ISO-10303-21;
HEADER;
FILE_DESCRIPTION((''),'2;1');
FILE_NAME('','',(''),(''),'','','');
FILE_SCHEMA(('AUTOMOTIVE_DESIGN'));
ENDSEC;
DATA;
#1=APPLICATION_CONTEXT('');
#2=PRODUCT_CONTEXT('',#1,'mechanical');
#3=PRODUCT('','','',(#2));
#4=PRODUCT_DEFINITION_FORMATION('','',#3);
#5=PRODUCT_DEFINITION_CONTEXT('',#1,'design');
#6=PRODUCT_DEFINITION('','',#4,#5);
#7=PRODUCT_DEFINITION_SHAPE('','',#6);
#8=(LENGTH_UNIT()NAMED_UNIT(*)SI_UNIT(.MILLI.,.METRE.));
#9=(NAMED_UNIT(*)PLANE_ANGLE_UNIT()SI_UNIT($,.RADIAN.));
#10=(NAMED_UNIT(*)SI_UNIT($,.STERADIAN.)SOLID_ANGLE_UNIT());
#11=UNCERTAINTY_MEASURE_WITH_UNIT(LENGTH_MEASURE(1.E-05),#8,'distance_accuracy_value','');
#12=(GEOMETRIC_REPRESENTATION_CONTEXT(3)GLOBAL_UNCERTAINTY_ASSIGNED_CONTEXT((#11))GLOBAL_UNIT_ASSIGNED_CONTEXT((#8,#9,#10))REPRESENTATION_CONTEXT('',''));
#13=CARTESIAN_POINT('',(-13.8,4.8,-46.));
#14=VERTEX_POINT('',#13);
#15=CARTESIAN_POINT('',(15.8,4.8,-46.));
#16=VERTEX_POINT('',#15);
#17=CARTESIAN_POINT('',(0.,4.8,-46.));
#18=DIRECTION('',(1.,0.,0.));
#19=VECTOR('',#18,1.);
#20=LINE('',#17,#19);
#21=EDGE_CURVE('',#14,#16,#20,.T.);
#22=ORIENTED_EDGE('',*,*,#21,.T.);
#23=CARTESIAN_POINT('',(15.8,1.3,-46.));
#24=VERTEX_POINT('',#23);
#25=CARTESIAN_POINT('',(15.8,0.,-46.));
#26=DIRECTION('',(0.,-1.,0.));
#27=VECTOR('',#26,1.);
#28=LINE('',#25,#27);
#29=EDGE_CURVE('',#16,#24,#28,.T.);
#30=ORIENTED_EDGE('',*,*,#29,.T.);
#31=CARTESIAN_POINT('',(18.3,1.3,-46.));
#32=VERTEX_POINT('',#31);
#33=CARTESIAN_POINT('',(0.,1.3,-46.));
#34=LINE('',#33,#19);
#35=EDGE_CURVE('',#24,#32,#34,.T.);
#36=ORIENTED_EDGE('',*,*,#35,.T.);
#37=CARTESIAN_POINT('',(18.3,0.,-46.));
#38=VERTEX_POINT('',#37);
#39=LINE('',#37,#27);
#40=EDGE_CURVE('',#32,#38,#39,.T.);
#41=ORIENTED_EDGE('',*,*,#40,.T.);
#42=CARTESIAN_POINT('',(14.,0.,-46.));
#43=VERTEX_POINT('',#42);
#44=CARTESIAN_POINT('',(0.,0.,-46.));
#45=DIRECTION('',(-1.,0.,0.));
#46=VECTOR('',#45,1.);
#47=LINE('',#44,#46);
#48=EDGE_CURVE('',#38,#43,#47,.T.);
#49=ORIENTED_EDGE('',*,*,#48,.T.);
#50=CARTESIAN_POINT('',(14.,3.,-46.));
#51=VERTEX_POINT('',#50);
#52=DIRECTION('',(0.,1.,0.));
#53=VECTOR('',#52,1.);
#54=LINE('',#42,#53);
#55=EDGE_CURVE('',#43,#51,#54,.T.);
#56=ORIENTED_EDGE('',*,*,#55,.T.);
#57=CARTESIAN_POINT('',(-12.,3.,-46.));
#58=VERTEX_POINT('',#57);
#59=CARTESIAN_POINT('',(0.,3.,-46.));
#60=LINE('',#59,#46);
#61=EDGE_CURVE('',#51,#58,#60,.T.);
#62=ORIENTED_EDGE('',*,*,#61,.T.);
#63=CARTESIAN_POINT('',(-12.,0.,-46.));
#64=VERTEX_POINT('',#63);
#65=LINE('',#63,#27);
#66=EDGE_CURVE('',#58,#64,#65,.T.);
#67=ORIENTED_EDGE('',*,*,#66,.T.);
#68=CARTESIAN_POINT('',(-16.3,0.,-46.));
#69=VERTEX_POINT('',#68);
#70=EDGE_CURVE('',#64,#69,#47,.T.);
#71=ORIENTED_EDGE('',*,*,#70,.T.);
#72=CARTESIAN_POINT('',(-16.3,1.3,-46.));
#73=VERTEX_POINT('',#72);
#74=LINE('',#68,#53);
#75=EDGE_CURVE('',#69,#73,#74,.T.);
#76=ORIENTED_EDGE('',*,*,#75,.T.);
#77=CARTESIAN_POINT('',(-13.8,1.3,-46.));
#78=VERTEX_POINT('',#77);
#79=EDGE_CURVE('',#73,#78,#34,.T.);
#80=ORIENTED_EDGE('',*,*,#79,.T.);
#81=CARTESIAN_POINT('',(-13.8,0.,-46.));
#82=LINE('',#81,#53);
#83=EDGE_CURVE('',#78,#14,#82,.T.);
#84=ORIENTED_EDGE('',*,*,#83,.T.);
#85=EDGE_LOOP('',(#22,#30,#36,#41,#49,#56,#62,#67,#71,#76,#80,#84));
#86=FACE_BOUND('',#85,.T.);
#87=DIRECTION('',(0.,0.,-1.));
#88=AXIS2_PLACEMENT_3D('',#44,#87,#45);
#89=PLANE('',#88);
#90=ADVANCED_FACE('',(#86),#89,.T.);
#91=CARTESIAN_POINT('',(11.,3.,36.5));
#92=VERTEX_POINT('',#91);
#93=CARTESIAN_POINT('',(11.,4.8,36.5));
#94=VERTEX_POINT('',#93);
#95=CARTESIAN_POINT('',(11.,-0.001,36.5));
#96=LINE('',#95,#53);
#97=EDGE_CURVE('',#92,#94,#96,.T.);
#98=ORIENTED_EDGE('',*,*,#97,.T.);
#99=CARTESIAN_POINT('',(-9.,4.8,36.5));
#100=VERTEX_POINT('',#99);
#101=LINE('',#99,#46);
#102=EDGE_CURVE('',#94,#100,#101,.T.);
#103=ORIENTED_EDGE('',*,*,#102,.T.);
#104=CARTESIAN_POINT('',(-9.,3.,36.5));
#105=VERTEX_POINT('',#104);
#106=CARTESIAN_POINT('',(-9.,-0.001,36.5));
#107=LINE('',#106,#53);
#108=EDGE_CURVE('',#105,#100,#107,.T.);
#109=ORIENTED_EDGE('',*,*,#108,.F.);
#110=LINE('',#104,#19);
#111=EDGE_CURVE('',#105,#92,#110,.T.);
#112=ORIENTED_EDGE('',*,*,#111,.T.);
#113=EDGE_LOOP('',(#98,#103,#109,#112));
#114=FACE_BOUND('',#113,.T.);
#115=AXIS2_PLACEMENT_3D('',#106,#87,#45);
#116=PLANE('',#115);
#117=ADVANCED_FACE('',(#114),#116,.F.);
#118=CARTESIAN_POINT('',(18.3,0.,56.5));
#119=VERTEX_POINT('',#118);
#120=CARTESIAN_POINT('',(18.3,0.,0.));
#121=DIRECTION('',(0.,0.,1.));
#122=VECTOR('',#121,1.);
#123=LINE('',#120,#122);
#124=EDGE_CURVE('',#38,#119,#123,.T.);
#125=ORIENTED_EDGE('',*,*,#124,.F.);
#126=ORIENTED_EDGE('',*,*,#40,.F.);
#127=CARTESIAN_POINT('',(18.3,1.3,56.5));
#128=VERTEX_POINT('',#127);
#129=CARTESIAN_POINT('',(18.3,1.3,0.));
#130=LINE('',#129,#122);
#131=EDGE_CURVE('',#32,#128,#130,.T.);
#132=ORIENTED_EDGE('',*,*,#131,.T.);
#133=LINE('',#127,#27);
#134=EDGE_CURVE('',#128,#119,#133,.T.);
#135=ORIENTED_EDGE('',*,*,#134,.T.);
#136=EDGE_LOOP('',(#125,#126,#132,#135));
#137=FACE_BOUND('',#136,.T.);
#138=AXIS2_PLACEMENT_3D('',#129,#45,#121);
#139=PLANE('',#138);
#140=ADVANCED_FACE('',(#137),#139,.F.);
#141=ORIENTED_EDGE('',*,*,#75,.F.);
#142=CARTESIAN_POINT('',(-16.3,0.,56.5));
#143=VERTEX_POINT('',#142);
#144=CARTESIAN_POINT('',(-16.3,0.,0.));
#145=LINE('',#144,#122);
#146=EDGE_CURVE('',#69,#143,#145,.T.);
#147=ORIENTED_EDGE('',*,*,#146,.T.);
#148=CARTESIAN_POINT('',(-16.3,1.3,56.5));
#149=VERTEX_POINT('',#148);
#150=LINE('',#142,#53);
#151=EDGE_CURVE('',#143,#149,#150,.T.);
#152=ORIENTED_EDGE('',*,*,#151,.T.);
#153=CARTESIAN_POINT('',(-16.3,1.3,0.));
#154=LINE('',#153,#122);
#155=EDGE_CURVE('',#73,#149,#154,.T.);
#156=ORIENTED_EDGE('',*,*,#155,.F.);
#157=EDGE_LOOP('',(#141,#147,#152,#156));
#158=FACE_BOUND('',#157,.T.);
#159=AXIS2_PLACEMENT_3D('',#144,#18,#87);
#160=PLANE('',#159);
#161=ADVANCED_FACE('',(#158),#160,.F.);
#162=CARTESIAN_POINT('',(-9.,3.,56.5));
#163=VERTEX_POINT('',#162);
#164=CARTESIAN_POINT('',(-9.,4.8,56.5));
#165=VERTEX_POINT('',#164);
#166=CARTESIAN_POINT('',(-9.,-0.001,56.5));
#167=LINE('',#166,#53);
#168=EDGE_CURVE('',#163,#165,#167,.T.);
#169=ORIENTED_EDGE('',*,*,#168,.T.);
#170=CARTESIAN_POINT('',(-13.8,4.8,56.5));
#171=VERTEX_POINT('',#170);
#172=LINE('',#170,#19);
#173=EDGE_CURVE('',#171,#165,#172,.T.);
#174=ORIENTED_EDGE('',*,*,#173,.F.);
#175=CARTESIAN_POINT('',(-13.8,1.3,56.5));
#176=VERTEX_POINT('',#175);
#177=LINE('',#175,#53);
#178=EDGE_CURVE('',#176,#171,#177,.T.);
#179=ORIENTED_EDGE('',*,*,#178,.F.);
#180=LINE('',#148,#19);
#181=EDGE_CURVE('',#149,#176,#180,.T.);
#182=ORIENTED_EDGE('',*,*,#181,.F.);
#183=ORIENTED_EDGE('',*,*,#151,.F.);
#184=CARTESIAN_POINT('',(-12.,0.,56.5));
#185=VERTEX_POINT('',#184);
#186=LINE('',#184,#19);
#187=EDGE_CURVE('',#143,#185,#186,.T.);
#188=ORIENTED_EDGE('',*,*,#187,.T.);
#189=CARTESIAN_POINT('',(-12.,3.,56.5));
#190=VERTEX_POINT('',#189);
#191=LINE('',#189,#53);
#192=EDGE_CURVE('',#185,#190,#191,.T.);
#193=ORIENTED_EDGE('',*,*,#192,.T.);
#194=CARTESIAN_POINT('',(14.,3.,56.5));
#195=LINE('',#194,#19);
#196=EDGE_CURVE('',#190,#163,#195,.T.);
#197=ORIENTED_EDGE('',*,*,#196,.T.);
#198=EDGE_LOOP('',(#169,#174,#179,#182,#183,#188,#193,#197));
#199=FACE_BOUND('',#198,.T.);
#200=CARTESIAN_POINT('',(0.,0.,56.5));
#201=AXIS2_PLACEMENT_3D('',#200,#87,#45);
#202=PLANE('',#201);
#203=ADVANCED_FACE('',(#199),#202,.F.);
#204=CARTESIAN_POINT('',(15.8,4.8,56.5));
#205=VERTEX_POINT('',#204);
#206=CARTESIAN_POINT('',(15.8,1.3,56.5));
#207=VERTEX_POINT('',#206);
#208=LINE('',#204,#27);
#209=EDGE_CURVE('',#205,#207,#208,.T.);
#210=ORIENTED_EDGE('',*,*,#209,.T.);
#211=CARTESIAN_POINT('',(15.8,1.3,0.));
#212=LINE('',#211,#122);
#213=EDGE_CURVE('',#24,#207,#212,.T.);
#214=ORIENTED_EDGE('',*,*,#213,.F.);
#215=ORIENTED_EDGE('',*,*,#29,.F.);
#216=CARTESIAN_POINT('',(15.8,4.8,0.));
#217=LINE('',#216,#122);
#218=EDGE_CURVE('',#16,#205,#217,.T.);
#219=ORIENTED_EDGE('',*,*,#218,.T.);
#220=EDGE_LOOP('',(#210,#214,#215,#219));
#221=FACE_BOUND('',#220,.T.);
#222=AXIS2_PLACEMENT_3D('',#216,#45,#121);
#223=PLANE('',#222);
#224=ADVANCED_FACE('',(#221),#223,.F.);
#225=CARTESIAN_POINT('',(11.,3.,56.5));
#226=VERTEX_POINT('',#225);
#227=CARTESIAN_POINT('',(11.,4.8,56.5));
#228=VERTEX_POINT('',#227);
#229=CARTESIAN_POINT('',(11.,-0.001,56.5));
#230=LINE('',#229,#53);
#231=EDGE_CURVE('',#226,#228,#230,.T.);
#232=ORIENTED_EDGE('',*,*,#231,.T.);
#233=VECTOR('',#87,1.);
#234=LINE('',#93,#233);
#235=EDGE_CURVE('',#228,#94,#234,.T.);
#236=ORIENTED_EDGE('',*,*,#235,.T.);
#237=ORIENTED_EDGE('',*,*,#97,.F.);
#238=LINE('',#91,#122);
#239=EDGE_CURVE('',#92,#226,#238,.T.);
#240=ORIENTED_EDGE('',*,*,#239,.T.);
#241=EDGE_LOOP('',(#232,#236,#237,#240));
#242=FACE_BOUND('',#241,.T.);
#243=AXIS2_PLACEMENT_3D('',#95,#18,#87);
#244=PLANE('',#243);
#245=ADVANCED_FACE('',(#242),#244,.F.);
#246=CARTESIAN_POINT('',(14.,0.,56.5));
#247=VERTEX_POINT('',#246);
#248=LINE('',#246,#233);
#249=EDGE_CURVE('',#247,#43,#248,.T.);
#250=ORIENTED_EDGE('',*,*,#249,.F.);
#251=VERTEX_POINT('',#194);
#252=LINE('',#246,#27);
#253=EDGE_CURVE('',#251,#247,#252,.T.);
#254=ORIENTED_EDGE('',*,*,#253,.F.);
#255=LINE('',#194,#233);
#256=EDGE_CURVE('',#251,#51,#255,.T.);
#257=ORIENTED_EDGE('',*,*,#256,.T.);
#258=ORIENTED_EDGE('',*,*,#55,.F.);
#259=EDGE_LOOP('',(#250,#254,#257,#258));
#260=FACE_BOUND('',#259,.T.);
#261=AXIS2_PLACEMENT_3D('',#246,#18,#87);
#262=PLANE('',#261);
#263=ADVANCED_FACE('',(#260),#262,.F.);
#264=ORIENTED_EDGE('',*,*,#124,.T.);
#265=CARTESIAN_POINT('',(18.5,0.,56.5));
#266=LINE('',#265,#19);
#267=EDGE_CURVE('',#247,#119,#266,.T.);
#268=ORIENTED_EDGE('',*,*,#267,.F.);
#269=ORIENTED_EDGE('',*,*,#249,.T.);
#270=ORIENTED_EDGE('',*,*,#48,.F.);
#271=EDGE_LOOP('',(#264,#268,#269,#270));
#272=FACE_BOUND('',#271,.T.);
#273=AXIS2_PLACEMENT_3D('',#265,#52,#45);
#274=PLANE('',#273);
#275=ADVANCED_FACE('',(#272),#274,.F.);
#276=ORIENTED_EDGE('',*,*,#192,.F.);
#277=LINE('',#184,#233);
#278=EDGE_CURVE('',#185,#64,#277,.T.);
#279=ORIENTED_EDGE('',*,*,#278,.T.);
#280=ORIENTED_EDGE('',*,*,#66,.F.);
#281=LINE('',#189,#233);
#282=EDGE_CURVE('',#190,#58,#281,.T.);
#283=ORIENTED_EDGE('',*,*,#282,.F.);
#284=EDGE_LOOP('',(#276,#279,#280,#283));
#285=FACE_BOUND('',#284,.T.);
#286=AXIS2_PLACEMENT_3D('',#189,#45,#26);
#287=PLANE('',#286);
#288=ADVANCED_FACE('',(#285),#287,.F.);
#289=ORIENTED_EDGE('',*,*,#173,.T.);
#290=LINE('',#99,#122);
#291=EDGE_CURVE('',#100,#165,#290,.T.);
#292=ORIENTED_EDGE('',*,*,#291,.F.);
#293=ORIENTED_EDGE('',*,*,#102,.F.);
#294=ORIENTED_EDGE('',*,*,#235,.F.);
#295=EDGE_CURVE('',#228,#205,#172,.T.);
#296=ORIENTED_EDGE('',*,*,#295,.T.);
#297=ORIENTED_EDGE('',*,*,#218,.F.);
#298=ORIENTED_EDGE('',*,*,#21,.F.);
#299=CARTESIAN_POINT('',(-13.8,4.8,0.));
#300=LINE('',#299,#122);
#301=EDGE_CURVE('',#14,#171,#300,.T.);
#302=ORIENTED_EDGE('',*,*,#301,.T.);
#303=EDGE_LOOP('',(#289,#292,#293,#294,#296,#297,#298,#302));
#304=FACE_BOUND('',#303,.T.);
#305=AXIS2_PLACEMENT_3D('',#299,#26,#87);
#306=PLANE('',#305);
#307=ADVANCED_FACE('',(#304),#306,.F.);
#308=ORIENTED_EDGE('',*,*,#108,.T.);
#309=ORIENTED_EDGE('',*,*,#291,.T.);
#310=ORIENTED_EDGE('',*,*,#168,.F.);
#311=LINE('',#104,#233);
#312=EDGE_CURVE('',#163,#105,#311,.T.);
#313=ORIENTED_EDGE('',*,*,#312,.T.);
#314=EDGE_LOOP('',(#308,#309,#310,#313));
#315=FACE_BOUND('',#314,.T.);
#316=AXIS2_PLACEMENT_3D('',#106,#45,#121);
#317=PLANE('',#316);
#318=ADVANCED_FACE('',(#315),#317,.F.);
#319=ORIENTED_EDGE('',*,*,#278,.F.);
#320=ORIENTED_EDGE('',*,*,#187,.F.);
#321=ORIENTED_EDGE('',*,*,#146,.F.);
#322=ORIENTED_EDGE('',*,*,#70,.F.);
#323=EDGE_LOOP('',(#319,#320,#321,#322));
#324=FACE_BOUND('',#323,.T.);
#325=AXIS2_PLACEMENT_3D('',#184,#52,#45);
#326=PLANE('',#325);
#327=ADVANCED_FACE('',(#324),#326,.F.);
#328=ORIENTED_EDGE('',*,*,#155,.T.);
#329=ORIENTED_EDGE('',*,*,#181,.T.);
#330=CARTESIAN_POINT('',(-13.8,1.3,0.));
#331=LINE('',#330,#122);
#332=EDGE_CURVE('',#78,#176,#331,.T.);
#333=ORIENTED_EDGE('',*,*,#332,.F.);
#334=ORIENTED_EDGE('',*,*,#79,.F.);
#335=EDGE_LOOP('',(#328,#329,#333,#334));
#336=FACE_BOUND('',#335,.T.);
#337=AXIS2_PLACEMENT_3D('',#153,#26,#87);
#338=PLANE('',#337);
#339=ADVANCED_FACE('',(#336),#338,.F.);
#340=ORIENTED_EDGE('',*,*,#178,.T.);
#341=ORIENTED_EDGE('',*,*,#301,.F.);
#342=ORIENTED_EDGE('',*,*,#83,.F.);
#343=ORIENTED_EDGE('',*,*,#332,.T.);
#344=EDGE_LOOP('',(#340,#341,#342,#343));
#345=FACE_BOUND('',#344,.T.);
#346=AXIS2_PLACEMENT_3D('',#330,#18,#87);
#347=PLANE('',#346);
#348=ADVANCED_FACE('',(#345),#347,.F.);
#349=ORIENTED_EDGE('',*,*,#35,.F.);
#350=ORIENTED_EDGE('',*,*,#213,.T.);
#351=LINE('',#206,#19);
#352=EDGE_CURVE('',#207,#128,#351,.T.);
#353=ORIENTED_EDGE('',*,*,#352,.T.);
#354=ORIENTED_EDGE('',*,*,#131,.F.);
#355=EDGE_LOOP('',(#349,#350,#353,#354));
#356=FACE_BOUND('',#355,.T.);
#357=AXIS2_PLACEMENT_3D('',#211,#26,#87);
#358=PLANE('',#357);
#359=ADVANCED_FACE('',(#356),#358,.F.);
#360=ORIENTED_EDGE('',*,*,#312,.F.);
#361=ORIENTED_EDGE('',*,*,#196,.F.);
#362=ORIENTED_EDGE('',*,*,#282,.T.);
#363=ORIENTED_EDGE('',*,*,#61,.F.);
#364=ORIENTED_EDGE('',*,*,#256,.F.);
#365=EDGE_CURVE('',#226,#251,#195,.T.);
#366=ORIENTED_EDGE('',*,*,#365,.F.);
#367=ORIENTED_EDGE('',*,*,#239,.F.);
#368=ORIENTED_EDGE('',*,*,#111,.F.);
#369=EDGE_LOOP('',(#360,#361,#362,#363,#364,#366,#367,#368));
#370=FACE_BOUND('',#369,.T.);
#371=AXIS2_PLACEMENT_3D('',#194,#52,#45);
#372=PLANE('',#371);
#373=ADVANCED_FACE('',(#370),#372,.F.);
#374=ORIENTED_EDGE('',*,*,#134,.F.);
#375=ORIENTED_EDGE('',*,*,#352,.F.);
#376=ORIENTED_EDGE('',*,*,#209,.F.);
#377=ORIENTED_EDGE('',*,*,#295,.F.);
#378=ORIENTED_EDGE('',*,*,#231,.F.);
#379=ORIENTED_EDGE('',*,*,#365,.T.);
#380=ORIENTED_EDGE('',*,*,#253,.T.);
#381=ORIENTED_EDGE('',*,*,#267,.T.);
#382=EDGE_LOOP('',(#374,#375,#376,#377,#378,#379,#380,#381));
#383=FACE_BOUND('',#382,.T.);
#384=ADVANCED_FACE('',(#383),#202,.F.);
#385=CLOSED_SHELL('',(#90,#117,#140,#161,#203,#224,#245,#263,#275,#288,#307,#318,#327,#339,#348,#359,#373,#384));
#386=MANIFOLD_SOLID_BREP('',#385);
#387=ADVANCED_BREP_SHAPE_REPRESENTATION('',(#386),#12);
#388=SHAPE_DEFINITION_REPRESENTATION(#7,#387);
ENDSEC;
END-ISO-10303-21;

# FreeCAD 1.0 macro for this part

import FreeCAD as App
import Part
import Sketcher

V = App.Vector


def add_polygon(sketch, points):
    """Adds a closed chain of lines whose ends are joined by coincident constraints."""
    first, n = sketch.GeometryCount, len(points)
    for a, b in zip(points, points[1:] + points[:1]):
        sketch.addGeometry(Part.LineSegment(App.Vector(*a, 0), App.Vector(*b, 0)), False)
    for i in range(n):
        sketch.addConstraint(Sketcher.Constraint("Coincident", first + i, 2, first + (i + 1) % n, 1))

doc = App.newDocument("Part")
body = doc.addObject("PartDesign::Body", "Body")

# Sketch on XY plane
sketch1 = body.newObject("Sketcher::SketchObject", "Sketch")
sketch1.AttachmentSupport = (doc.getObject("XY_Plane"), [""])
sketch1.MapMode = "FlatFace"
add_polygon(sketch1, [(-16.5, 1.5), (-16.5, 0), (-12, 0), (-12, 3), (14, 3), (14, 0), (18.5, 0), (18.5, 1.5), (16, 1.5), (16, 5), (-14, 5), (-14, 1.5)])  # lines 0-11
sketch1.addConstraint([
    Sketcher.Constraint("Vertical", 0),
    Sketcher.Constraint("Horizontal", 1),
    Sketcher.Constraint("Vertical", 2),
    Sketcher.Constraint("Horizontal", 3),
    Sketcher.Constraint("Vertical", 4),
    Sketcher.Constraint("Horizontal", 5),
    Sketcher.Constraint("Vertical", 6),
    Sketcher.Constraint("Horizontal", 7),
    Sketcher.Constraint("Vertical", 8),
    Sketcher.Constraint("Horizontal", 9),
    Sketcher.Constraint("Vertical", 10),
    Sketcher.Constraint("Horizontal", 11),
    Sketcher.Constraint("PointOnObject", 0, 2, -1),
    Sketcher.Constraint("PointOnObject", 4, 2, -1),
    Sketcher.Constraint("Horizontal", 7, 2, 10, 2),
    Sketcher.Constraint("Equal", 1, 5),
    Sketcher.Constraint("Equal", 7, 11),
    Sketcher.Constraint("DistanceX", 3, 1, 3, 2, 26.0),
    Sketcher.Constraint("DistanceX", 9, 2, 9, 1, 30.0),
    Sketcher.Constraint("DistanceY", 2, 1, 2, 2, 3.0),
    Sketcher.Constraint("DistanceX", 1, 1, 1, 2, 4.5),
    Sketcher.Constraint("DistanceY", 0, 2, 0, 1, 1.5),
    Sketcher.Constraint("DistanceY", 8, 1, 8, 2, 3.5),
    Sketcher.Constraint("DistanceX", 1, 2, -1, 1, 12.0),
])
pad1 = body.newObject("PartDesign::Pad", "Pad")
pad1.Profile = sketch1
pad1.Length = 56.5

# Sketch on XZ plane
sketch2 = body.newObject("Sketcher::SketchObject", "Sketch001")
sketch2.AttachmentSupport = (doc.getObject("XZ_Plane"), [""])
sketch2.MapMode = "FlatFace"
sketch2.AttachmentOffset = App.Placement(V(0, 0, -5), App.Rotation())
add_polygon(sketch2, [(-9, 36), (-9, 56), (11, 56), (11, 36)])  # lines 0-3
sketch2.addConstraint([
    Sketcher.Constraint("Vertical", 0),
    Sketcher.Constraint("Horizontal", 1),
    Sketcher.Constraint("Vertical", 2),
    Sketcher.Constraint("Horizontal", 3),
    Sketcher.Constraint("Equal", 3, 0),
    Sketcher.Constraint("DistanceX", 1, 1, 1, 2, 20.0),
    Sketcher.Constraint("DistanceX", 0, 2, -1, 1, 9.0),
    Sketcher.Constraint("DistanceY", -1, 1, 0, 2, 56.5),
])
pocket1 = body.newObject("PartDesign::Pocket", "Pocket")
pocket1.Profile = sketch2
pocket1.Type = "UpToFirst"
pocket1.Reversed = True

# Sketch on XY plane
sketch3 = body.newObject("Sketcher::SketchObject", "Sketch002")
sketch3.AttachmentSupport = (doc.getObject("XY_Plane"), [""])
sketch3.MapMode = "FlatFace"
sketch3.AttachmentOffset = App.Placement(V(0, 0, 56.5), App.Rotation())
add_polygon(sketch3, [(-16.3, 0), (-16.3, 1.3), (-13.8, 1.3), (-13.8, 4.8), (15.8, 4.8), (15.8, 1.3), (18.3, 1.3), (18.3, 0), (18.5, 0), (18.5, 1.5), (16, 1.5), (16, 5), (-14, 5), (-14, 1.5), (-16.5, 1.5), (-16.5, 0)])  # lines 0-15
sketch3.addConstraint([
    Sketcher.Constraint("Vertical", 0),
    Sketcher.Constraint("Horizontal", 1),
    Sketcher.Constraint("Vertical", 2),
    Sketcher.Constraint("Horizontal", 3),
    Sketcher.Constraint("Vertical", 4),
    Sketcher.Constraint("Horizontal", 5),
    Sketcher.Constraint("Vertical", 6),
    Sketcher.Constraint("Horizontal", 7),
    Sketcher.Constraint("Vertical", 8),
    Sketcher.Constraint("Horizontal", 9),
    Sketcher.Constraint("Vertical", 10),
    Sketcher.Constraint("Horizontal", 11),
    Sketcher.Constraint("Vertical", 12),
    Sketcher.Constraint("Horizontal", 13),
    Sketcher.Constraint("Vertical", 14),
    Sketcher.Constraint("Horizontal", 15),
    Sketcher.Constraint("PointOnObject", 6, 2, -1),
    Sketcher.Constraint("PointOnObject", 14, 2, -1),
    Sketcher.Constraint("Horizontal", 1, 2, 4, 2),
    Sketcher.Constraint("Horizontal", 9, 2, 12, 2),
    Sketcher.Constraint("Equal", 1, 5),
    Sketcher.Constraint("Equal", 5, 9),
    Sketcher.Constraint("Equal", 9, 13),
    Sketcher.Constraint("Equal", 7, 15),
    Sketcher.Constraint("Equal", 4, 10),
    Sketcher.Constraint("DistanceX", 11, 2, 11, 1, 30.0),
    Sketcher.Constraint("DistanceX", 1, 1, 1, 2, 2.5),
    Sketcher.Constraint("DistanceX", 3, 1, 3, 2, 29.6),
    Sketcher.Constraint("DistanceY", 0, 1, 0, 2, 1.3),
    Sketcher.Constraint("DistanceY", 2, 1, 2, 2, 3.5),
    Sketcher.Constraint("DistanceY", 8, 1, 8, 2, 1.5),
    Sketcher.Constraint("DistanceX", -1, 1, 9, 2, 16.0),
])
pocket2 = body.newObject("PartDesign::Pocket", "Pocket001")
pocket2.Profile = sketch3
pocket2.Type = "ThroughAll"

# Sketch on XY plane
sketch4 = body.newObject("Sketcher::SketchObject", "Sketch003")
sketch4.AttachmentSupport = (doc.getObject("XY_Plane"), [""])
sketch4.MapMode = "FlatFace"
add_polygon(sketch4, [(15.8, 1.3), (18.3, 1.3), (18.3, 0), (14, 0), (14, 3), (-12, 3), (-12, 0), (-16.3, 0), (-16.3, 1.3), (-13.8, 1.3), (-13.8, 4.8), (15.8, 4.8)])  # lines 0-11
sketch4.addConstraint([
    Sketcher.Constraint("Horizontal", 0),
    Sketcher.Constraint("Vertical", 1),
    Sketcher.Constraint("Horizontal", 2),
    Sketcher.Constraint("Vertical", 3),
    Sketcher.Constraint("Horizontal", 4),
    Sketcher.Constraint("Vertical", 5),
    Sketcher.Constraint("Horizontal", 6),
    Sketcher.Constraint("Vertical", 7),
    Sketcher.Constraint("Horizontal", 8),
    Sketcher.Constraint("Vertical", 9),
    Sketcher.Constraint("Horizontal", 10),
    Sketcher.Constraint("Vertical", 11),
    Sketcher.Constraint("PointOnObject", 1, 2, -1),
    Sketcher.Constraint("PointOnObject", 5, 2, -1),
    Sketcher.Constraint("Horizontal", 0, 2, 7, 2),
    Sketcher.Constraint("Equal", 2, 6),
    Sketcher.Constraint("Equal", 0, 8),
    Sketcher.Constraint("DistanceX", 4, 2, 4, 1, 26.0),
    Sketcher.Constraint("DistanceY", 3, 1, 3, 2, 3.0),
    Sketcher.Constraint("DistanceX", 0, 1, 0, 2, 2.5),
    Sketcher.Constraint("DistanceX", 2, 2, 2, 1, 4.3),
    Sketcher.Constraint("DistanceY", 1, 2, 1, 1, 1.3),
    Sketcher.Constraint("DistanceY", 9, 1, 9, 2, 3.5),
    Sketcher.Constraint("DistanceX", -1, 1, 2, 2, 14.0),
])
pad2 = body.newObject("PartDesign::Pad", "Pad001")
pad2.Profile = sketch4
pad2.Length = 46
pad2.Reversed = True

doc.recompute()
